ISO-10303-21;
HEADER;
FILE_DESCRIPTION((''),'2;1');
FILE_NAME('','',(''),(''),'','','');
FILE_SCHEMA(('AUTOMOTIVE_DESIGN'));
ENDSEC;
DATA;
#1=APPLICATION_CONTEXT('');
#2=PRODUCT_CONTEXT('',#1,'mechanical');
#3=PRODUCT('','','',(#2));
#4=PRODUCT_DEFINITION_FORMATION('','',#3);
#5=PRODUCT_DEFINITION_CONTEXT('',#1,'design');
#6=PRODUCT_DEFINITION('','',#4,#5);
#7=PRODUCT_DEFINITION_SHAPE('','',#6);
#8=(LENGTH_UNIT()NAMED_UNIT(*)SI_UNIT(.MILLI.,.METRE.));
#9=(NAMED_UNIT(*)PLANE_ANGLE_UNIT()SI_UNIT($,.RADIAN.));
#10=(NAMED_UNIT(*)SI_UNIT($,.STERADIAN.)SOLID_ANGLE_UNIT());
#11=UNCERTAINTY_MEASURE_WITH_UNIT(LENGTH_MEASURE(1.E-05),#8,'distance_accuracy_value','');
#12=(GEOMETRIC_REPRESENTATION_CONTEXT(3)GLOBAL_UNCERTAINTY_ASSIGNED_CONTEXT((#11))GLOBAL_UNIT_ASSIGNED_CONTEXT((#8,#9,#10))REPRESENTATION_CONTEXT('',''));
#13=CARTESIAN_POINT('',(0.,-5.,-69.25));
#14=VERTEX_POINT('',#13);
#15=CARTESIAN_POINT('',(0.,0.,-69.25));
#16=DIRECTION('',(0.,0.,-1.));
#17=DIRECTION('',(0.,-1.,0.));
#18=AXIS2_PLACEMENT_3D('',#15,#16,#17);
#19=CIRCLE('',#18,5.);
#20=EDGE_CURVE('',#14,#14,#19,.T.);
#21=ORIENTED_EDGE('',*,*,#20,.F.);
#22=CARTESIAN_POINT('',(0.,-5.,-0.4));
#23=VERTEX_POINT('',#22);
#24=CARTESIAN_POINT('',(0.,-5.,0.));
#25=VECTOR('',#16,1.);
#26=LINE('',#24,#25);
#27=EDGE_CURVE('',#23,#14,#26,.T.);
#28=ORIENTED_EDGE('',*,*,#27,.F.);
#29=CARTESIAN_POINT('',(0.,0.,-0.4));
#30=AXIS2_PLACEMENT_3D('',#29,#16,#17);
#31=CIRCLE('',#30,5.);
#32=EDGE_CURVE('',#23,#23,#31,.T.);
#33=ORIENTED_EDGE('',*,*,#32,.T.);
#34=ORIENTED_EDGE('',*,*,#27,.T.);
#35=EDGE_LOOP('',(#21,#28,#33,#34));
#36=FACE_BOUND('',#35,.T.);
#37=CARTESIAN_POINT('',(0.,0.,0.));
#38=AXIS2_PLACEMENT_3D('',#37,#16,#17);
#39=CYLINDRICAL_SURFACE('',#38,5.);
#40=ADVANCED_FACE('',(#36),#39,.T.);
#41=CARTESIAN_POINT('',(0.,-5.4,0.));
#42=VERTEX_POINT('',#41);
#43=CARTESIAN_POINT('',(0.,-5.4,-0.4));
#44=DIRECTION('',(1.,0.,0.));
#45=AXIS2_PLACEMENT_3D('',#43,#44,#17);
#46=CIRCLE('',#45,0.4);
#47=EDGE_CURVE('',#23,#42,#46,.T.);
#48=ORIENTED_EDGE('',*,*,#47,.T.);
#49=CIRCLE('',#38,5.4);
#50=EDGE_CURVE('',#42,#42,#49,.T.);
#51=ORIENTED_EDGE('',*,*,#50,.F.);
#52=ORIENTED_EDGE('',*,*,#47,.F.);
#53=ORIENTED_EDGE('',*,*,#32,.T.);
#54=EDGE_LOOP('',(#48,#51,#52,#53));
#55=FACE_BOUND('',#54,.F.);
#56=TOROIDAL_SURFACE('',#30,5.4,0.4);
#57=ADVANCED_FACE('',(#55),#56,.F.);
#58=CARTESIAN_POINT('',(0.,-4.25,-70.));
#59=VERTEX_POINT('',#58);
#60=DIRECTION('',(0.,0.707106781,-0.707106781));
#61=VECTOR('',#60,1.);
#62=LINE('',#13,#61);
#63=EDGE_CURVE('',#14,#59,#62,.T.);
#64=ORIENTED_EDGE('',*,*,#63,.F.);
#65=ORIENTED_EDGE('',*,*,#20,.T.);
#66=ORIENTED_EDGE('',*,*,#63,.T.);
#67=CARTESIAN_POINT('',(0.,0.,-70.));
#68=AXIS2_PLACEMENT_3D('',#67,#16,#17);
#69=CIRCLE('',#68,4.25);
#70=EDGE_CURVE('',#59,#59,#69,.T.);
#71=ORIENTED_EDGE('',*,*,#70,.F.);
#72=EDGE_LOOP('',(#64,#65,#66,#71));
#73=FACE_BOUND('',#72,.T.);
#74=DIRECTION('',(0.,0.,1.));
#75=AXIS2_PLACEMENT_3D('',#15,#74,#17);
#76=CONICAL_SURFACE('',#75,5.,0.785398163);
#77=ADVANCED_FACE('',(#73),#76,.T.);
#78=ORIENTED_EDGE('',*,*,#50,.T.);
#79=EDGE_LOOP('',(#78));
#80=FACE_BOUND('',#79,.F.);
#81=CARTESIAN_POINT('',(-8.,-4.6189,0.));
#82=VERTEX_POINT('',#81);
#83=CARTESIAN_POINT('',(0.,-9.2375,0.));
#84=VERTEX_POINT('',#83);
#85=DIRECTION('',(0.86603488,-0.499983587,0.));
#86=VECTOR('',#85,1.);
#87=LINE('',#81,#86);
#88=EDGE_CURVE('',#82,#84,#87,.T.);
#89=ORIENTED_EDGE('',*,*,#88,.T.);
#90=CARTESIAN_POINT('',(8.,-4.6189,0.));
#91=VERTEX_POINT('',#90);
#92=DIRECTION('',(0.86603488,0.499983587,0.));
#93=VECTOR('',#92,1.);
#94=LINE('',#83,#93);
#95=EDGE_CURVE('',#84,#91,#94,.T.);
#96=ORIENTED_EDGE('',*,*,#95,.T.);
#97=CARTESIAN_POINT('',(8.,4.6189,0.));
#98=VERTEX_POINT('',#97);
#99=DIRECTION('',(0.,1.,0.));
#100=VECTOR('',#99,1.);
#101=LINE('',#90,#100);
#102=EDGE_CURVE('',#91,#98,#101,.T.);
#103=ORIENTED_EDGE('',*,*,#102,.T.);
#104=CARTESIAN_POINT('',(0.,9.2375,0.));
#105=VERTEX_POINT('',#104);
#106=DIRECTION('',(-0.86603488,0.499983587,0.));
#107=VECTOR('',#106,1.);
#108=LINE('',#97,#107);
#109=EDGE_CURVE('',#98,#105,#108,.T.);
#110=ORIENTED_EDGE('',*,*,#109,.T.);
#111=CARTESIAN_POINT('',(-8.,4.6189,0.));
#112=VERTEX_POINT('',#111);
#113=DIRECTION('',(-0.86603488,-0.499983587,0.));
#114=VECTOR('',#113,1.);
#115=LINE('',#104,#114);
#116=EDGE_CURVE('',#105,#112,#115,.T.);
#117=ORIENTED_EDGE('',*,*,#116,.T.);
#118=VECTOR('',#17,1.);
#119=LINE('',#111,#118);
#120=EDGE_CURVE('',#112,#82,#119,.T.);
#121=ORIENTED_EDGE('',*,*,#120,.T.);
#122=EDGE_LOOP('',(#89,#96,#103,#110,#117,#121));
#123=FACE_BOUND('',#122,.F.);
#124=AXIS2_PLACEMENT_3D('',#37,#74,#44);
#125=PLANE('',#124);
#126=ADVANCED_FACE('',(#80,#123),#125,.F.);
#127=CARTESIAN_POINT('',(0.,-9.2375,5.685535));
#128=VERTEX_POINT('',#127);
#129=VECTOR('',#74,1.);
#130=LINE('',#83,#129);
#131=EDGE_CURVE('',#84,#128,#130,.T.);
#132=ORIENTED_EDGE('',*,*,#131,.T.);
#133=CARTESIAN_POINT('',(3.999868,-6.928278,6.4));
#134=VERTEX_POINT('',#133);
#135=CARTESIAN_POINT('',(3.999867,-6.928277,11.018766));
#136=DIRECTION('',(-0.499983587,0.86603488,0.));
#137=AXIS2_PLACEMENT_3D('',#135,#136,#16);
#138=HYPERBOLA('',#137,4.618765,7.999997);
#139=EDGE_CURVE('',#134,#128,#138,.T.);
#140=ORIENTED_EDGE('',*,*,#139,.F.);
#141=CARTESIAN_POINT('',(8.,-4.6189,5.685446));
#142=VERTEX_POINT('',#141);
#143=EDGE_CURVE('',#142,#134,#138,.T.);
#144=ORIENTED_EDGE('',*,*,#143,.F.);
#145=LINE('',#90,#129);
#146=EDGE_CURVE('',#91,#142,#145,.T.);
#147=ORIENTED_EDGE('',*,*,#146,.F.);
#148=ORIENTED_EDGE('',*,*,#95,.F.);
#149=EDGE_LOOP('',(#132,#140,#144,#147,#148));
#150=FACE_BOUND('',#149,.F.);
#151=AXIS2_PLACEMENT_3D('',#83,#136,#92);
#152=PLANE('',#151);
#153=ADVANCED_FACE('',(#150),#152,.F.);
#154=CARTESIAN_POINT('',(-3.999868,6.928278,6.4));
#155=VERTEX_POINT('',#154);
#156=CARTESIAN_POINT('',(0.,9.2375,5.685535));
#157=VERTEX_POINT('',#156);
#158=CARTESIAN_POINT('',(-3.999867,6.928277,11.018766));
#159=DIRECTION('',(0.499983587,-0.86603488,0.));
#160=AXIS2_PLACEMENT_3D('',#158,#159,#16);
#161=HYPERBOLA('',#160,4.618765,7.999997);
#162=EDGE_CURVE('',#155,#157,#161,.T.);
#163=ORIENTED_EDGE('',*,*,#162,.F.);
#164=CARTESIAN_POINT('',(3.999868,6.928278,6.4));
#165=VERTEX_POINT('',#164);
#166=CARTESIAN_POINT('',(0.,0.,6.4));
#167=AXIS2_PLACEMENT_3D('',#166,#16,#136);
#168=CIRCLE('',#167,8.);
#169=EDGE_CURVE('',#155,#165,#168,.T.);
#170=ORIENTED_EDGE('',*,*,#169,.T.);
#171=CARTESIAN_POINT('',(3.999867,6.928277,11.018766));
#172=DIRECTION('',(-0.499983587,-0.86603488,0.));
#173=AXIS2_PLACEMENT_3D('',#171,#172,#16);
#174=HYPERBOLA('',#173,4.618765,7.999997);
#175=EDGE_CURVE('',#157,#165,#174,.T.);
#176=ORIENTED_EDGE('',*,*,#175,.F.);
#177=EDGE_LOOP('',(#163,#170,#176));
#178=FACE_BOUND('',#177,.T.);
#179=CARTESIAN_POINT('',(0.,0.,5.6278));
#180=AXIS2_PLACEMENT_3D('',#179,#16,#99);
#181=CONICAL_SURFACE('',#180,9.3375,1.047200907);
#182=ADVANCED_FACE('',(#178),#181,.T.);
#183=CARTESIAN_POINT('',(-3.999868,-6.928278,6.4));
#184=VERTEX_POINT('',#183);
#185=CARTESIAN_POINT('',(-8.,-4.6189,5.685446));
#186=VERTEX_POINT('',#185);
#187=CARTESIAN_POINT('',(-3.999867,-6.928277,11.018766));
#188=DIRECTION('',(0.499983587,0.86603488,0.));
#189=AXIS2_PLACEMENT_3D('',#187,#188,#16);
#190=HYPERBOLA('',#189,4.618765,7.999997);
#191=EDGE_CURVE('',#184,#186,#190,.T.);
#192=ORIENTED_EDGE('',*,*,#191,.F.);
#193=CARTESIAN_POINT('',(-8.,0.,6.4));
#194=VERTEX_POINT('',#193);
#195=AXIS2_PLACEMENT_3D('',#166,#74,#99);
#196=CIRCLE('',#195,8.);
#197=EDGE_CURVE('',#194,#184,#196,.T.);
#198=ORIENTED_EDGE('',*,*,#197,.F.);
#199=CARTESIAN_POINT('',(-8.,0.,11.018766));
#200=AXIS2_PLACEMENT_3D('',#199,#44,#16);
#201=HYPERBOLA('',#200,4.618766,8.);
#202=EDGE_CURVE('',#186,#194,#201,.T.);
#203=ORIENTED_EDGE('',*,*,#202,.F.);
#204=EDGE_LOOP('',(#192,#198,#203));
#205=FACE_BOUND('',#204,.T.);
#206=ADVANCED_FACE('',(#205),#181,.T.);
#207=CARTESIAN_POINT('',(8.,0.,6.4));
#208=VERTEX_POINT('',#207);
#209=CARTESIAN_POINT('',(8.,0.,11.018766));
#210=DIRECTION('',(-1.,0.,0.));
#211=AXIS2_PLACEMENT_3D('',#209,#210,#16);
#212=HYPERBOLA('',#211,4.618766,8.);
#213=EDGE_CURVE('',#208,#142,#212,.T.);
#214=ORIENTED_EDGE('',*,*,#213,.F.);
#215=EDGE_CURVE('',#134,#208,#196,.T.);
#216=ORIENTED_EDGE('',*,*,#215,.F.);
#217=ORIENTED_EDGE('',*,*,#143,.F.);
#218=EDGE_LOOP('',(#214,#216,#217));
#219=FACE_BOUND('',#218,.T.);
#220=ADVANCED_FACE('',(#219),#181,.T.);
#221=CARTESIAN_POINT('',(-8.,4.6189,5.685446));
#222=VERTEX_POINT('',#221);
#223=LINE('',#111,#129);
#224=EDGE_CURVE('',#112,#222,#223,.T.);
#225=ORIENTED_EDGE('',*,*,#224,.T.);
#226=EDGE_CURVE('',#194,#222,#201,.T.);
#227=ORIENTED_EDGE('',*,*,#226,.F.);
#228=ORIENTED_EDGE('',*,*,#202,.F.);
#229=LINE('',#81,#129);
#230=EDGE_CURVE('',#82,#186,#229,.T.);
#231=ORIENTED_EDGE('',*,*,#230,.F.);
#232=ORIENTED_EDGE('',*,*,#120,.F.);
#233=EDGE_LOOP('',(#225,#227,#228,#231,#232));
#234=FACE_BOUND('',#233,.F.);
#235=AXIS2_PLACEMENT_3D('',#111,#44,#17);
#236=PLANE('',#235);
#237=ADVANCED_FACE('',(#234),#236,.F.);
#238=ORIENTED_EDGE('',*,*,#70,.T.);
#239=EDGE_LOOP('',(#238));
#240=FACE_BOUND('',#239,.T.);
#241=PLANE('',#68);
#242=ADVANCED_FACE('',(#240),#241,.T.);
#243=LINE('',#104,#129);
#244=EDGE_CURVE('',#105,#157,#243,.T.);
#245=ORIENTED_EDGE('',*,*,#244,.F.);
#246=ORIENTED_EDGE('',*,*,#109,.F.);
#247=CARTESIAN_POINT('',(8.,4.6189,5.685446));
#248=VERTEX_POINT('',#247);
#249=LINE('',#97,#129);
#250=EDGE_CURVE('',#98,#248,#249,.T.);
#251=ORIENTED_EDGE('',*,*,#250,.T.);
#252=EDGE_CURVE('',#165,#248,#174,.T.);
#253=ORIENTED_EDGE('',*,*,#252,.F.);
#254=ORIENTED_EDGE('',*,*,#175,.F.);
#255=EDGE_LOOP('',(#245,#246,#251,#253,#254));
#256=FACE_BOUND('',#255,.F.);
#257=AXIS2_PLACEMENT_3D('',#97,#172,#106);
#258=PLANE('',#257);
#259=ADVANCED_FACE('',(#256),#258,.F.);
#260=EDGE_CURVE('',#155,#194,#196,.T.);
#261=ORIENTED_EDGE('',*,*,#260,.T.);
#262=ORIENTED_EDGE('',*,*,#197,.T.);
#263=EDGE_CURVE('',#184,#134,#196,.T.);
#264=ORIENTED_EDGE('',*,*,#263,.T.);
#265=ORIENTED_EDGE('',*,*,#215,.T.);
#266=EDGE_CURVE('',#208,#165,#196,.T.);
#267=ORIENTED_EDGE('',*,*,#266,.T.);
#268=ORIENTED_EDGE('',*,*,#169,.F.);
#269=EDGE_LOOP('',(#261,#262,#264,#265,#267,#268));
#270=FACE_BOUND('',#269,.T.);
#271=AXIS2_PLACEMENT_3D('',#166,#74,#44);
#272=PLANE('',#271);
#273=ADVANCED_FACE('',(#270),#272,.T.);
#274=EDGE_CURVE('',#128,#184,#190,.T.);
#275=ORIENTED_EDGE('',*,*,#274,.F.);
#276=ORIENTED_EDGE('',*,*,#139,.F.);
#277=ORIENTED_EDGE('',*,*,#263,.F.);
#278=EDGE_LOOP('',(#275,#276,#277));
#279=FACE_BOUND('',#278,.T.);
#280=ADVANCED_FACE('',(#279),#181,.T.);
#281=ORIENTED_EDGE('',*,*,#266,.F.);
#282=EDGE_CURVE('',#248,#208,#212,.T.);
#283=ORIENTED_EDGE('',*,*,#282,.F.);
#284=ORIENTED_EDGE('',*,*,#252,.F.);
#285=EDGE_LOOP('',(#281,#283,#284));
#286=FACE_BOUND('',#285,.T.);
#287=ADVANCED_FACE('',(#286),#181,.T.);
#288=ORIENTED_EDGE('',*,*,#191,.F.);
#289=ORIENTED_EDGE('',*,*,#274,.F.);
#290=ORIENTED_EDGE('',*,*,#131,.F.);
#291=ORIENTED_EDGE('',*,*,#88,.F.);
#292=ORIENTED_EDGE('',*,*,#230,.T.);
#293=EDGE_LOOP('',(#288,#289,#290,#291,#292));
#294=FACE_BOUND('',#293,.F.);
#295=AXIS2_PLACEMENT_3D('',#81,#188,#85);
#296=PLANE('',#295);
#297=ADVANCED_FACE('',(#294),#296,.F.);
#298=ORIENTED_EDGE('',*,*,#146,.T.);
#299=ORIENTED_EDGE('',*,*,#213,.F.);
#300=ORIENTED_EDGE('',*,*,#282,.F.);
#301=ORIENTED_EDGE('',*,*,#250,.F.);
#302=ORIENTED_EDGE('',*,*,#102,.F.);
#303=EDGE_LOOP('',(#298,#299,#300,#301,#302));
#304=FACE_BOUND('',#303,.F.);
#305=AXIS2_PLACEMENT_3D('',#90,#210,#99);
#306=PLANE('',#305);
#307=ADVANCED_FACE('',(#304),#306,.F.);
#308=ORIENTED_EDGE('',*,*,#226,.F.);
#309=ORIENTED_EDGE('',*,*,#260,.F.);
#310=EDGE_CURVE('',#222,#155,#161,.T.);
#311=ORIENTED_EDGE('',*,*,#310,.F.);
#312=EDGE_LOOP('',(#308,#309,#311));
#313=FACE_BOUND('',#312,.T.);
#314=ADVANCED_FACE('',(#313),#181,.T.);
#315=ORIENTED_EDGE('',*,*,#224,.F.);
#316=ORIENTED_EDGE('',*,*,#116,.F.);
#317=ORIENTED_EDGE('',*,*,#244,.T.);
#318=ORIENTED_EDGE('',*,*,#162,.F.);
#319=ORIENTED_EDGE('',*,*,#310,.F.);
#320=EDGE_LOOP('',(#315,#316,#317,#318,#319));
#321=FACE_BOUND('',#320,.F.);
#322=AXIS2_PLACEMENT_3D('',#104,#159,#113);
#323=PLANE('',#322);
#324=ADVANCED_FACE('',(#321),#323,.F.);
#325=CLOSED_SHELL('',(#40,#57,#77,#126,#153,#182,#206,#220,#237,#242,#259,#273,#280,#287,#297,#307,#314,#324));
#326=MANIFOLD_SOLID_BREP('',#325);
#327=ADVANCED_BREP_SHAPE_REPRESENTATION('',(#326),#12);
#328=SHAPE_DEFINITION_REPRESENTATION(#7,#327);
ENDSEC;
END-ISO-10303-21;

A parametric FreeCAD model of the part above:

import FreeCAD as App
import Part
import Sketcher
Q = App.Units.Quantity


def edges_at(feature, points):
    """Names of the edges that pass closest to the given points."""
    edges = feature.Shape.Edges
    near = lambda p: min(range(len(edges)), key=lambda i: edges[i].distToShape(Part.Vertex(*p))[0])
    return sorted({f"Edge{near(p) + 1}" for p in points})

doc = App.newDocument("Part")
body = doc.addObject("PartDesign::Body", "Body")

# Sketch on XY plane
sketch1 = body.newObject("Sketcher::SketchObject", "Sketch")
sketch1.AttachmentSupport = (doc.getObject("XY_Plane"), [""])
sketch1.MapMode = "FlatFace"
sketch1.addGeometry(Part.LineSegment(App.Vector(0, 9, 0), App.Vector(-8, 5, 0)), False)
sketch1.addGeometry(Part.LineSegment(App.Vector(-8, 5, 0), App.Vector(-8, -5, 0)), False)
sketch1.addGeometry(Part.LineSegment(App.Vector(-8, -5, 0), App.Vector(0, -9, 0)), False)
sketch1.addGeometry(Part.LineSegment(App.Vector(0, -9, 0), App.Vector(8, -5, 0)), False)
sketch1.addGeometry(Part.LineSegment(App.Vector(8, -5, 0), App.Vector(8, 5, 0)), False)
sketch1.addGeometry(Part.LineSegment(App.Vector(8, 5, 0), App.Vector(0, 9, 0)), False)
sketch1.addConstraint(Sketcher.Constraint("Coincident", 0, 2, 1, 1))
sketch1.addConstraint(Sketcher.Constraint("Coincident", 1, 2, 2, 1))
sketch1.addConstraint(Sketcher.Constraint("Coincident", 2, 2, 3, 1))
sketch1.addConstraint(Sketcher.Constraint("Coincident", 3, 2, 4, 1))
sketch1.addConstraint(Sketcher.Constraint("Coincident", 4, 2, 5, 1))
sketch1.addConstraint(Sketcher.Constraint("Coincident", 5, 2, 0, 1))
sketch1.addConstraint(Sketcher.Constraint("Vertical", 1))
sketch1.addConstraint(Sketcher.Constraint("Vertical", 4))
sketch1.addConstraint(Sketcher.Constraint("Symmetric", 0, 2, 3, 2, -1, 1))
sketch1.addConstraint(Sketcher.Constraint("Symmetric", 2, 2, 5, 2, -1, 1))
sketch1.addConstraint(Sketcher.Constraint("PointOnObject", 2, 2, -2))
sketch1.addConstraint(Sketcher.Constraint("Parallel", 2, 5))
sketch1.addConstraint(Sketcher.Constraint("Horizontal", 1, 2, 3, 2))
sketch1.addConstraint(Sketcher.Constraint("DistanceX", 1, 2, 3, 2, 16.0))
sketch1.addConstraint(Sketcher.Constraint("Angle", 0, Q("-150.001 deg")))
sketch1.addConstraint(Sketcher.Constraint("DistanceY", 1, 2, 1, 1, 9.2378))
pad1 = body.newObject("PartDesign::Pad", "Pad")
pad1.Profile = sketch1
pad1.Length = 6.4

# Sketch on YZ plane
sketch2 = body.newObject("Sketcher::SketchObject", "Sketch001")
sketch2.AttachmentSupport = (doc.getObject("YZ_Plane"), [""])
sketch2.MapMode = "FlatFace"
sketch2.addGeometry(Part.LineSegment(App.Vector(8, 6.4, 0), App.Vector(9.3, 5.6, 0)), False)
sketch2.addGeometry(Part.LineSegment(App.Vector(9.3, 5.6, 0), App.Vector(9.3, 6.4, 0)), False)
sketch2.addGeometry(Part.LineSegment(App.Vector(9.3, 6.4, 0), App.Vector(8, 6.4, 0)), False)
sketch2.addConstraint(Sketcher.Constraint("Coincident", 0, 2, 1, 1))
sketch2.addConstraint(Sketcher.Constraint("Coincident", 1, 2, 2, 1))
sketch2.addConstraint(Sketcher.Constraint("Coincident", 2, 2, 0, 1))
sketch2.addConstraint(Sketcher.Constraint("Vertical", 1))
sketch2.addConstraint(Sketcher.Constraint("Horizontal", 2))
sketch2.addConstraint(Sketcher.Constraint("DistanceX", -1, 1, 2, 2, 8.0))
sketch2.addConstraint(Sketcher.Constraint("Angle", 0, Q("-29.9998 deg")))
sketch2.addConstraint(Sketcher.Constraint("DistanceY", -1, 1, 1, 2, 6.4))
sketch2.addConstraint(Sketcher.Constraint("DistanceX", 2, 2, 2, 1, 1.3375))
groove = body.newObject("PartDesign::Groove", "Groove")
groove.Profile = sketch2
groove.ReferenceAxis = (sketch2, ["V_Axis"])
groove.Angle = 360

# Sketch on YZ plane
sketch3 = body.newObject("Sketcher::SketchObject", "Sketch002")
sketch3.AttachmentSupport = (doc.getObject("YZ_Plane"), [""])
sketch3.MapMode = "FlatFace"
sketch3.addGeometry(Part.LineSegment(App.Vector(-5, -70, 0), App.Vector(0, -70, 0)), False)
sketch3.addGeometry(Part.LineSegment(App.Vector(0, -70, 0), App.Vector(0, 0, 0)), False)
sketch3.addGeometry(Part.LineSegment(App.Vector(0, 0, 0), App.Vector(-5, 0, 0)), False)
sketch3.addGeometry(Part.LineSegment(App.Vector(-5, 0, 0), App.Vector(-5, -70, 0)), False)
sketch3.addConstraint(Sketcher.Constraint("Coincident", 0, 2, 1, 1))
sketch3.addConstraint(Sketcher.Constraint("Coincident", 1, 2, 2, 1))
sketch3.addConstraint(Sketcher.Constraint("Coincident", 2, 2, 3, 1))
sketch3.addConstraint(Sketcher.Constraint("Coincident", 3, 2, 0, 1))
sketch3.addConstraint(Sketcher.Constraint("Horizontal", 0))
sketch3.addConstraint(Sketcher.Constraint("Vertical", 1))
sketch3.addConstraint(Sketcher.Constraint("Horizontal", 2))
sketch3.addConstraint(Sketcher.Constraint("Vertical", 3))
sketch3.addConstraint(Sketcher.Constraint("Coincident", 1, 2, -1, 1))
sketch3.addConstraint(Sketcher.Constraint("DistanceX", 0, 1, 0, 2, 5.0))
sketch3.addConstraint(Sketcher.Constraint("DistanceY", 1, 1, 1, 2, 70.0))
revolution = body.newObject("PartDesign::Revolution", "Revolution")
revolution.Profile = sketch3
revolution.ReferenceAxis = (sketch3, ["V_Axis"])
revolution.Angle = 360
doc.recompute()

chamfer = body.newObject("PartDesign::Chamfer", "Chamfer")
chamfer.Base = (revolution, edges_at(revolution, [(0, 5, -70)]))
chamfer.Size = 0.75
doc.recompute()

fillet = body.newObject("PartDesign::Fillet", "Fillet")
fillet.Base = (chamfer, edges_at(chamfer, [(0, 5, 0)]))
fillet.Radius = 0.4

doc.recompute()
